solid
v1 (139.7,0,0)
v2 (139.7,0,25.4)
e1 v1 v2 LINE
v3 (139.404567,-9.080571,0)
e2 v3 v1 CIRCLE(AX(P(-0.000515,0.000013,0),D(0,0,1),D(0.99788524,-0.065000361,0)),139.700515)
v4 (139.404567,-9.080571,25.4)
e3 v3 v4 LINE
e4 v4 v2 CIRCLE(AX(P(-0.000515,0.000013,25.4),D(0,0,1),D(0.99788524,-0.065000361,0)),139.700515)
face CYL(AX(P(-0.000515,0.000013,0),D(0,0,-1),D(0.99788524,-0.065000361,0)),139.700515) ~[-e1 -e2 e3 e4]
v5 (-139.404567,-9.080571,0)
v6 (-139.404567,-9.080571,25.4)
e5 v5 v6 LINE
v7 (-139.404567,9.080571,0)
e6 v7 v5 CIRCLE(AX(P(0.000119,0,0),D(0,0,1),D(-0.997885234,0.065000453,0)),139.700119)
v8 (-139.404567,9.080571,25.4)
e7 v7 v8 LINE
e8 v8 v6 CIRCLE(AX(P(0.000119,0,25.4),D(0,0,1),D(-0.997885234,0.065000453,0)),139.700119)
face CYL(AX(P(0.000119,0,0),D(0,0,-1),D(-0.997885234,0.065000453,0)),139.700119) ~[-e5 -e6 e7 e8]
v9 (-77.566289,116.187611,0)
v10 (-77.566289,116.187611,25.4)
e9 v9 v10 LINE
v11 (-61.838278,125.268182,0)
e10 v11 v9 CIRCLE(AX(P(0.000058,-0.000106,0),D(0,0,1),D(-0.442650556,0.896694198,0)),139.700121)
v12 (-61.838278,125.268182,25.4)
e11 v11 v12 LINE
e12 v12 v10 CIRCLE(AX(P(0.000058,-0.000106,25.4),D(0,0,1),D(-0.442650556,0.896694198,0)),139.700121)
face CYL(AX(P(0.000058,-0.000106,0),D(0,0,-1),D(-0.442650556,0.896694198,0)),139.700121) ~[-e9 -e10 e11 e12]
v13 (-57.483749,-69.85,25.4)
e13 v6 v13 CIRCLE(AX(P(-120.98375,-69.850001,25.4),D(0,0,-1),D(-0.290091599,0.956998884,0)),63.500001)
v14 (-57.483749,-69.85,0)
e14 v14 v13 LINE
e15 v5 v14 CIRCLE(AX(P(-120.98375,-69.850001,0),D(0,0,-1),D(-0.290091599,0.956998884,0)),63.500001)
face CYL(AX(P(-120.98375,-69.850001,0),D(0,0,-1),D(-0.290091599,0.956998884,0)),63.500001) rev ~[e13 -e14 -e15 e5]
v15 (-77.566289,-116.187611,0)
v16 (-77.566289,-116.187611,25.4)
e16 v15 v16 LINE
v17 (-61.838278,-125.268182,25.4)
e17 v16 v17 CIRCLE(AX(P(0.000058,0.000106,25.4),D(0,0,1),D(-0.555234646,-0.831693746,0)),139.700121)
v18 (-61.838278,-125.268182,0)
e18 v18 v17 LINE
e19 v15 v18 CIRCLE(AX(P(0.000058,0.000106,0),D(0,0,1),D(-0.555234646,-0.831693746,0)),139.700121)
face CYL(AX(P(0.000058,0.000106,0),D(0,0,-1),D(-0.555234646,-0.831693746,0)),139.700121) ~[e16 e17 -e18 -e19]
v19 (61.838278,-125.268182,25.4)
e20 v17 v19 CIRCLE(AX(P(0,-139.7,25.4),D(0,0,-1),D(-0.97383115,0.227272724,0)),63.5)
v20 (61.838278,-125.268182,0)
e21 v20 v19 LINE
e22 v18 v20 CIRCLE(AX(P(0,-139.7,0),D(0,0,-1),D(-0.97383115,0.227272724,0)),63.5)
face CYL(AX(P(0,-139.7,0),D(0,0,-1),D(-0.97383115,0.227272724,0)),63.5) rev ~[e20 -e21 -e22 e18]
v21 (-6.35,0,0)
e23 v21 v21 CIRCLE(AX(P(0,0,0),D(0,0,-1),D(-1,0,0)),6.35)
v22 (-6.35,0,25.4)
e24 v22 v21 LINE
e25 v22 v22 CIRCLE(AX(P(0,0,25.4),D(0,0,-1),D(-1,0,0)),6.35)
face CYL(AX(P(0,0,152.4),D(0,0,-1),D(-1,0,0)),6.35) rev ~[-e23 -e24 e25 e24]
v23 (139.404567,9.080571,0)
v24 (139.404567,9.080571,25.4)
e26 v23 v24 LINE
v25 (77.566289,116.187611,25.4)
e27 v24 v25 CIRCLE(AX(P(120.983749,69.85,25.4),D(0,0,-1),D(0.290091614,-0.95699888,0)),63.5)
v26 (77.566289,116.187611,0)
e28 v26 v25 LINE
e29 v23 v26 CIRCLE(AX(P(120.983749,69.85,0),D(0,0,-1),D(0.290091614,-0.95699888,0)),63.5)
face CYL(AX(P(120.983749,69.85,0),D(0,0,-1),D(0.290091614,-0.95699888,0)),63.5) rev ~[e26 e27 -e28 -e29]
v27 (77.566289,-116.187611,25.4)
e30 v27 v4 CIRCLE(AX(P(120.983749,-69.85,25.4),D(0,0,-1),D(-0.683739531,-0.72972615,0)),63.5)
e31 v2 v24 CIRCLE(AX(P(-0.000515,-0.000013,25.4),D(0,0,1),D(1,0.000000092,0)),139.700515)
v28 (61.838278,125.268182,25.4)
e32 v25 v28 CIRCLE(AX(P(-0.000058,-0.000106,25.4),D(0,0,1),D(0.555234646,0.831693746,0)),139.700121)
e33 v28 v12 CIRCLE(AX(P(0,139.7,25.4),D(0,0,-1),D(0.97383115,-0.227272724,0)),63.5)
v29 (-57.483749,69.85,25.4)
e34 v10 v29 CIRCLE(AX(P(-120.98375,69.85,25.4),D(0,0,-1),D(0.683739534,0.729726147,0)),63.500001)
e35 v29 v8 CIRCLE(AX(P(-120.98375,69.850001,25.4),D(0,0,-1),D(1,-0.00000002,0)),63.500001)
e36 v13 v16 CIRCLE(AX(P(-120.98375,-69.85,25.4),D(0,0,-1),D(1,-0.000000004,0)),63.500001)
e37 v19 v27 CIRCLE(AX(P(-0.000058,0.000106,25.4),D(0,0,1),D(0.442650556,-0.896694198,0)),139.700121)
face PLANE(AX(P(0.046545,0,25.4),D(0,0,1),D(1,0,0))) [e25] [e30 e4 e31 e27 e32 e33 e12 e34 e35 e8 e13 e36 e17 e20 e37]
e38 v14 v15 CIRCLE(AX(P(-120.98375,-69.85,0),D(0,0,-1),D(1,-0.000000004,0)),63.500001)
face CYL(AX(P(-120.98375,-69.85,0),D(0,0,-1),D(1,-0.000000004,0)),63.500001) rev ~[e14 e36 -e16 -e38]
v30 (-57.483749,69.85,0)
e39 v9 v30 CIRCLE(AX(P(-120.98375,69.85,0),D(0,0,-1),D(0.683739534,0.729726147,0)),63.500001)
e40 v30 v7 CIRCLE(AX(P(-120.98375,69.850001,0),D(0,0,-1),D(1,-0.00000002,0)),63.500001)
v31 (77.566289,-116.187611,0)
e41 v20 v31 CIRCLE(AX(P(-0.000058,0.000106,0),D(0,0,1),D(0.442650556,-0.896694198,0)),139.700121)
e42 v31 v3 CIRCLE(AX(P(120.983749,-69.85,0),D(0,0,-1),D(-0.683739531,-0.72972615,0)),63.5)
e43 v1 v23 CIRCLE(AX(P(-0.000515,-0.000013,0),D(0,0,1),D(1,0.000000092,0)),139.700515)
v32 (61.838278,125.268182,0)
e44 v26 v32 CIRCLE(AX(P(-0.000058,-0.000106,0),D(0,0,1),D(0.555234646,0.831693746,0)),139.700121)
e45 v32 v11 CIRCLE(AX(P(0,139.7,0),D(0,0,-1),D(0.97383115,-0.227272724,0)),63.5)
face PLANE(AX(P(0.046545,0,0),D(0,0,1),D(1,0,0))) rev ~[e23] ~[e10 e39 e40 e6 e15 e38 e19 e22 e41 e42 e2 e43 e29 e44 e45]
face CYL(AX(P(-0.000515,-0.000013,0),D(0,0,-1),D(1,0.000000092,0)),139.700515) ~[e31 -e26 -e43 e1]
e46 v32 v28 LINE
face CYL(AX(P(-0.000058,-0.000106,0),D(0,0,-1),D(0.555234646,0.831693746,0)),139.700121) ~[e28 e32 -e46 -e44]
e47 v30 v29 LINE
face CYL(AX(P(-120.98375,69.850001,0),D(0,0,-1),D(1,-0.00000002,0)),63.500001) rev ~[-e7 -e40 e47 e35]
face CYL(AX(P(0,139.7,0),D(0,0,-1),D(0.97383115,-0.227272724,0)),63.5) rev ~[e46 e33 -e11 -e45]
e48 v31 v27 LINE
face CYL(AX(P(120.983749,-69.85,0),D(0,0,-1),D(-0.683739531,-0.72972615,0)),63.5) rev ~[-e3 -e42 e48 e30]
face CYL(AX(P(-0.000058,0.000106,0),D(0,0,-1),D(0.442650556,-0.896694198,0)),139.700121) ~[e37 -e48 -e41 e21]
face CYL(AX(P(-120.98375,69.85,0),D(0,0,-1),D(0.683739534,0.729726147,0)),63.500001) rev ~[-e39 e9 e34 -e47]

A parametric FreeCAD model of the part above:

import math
import FreeCAD as App
import Part
import Sketcher
Q = App.Units.Quantity

doc = App.newDocument("Part")
body = doc.addObject("PartDesign::Body", "Body")

# Sketch on XY plane
sketch1 = body.newObject("Sketcher::SketchObject", "Sketch")
sketch1.AttachmentSupport = (doc.getObject("XY_Plane"), [""])
sketch1.MapMode = "FlatFace"
sketch1.addGeometry([
    Part.ArcOfCircle(Part.Circle(App.Vector(-0.000515, 0.000013, 0), App.Vector(0, 0, 1), 139.700515), math.radians(-3.726874), math.radians(-0.000005)),  # 0
    Part.ArcOfCircle(Part.Circle(App.Vector(-0.000515, -0.000013, 0), App.Vector(0, 0, 1), 139.700515), math.radians(0.000005), math.radians(3.726874)),  # 1
    Part.ArcOfCircle(Part.Circle(App.Vector(120.983749, 69.85, 0), App.Vector(0, 0, 1), 63.5), math.radians(133.136559), math.radians(286.863441)),  # 2
    Part.ArcOfCircle(Part.Circle(App.Vector(-0.000058, -0.000106, 0), App.Vector(0, 0, 1), 139.700121), math.radians(56.273122), math.radians(63.72688)),  # 3
    Part.ArcOfCircle(Part.Circle(App.Vector(0, 139.7, 0), App.Vector(0, 0, 1), 63.5), math.radians(-166.863441), math.radians(-13.136559)),  # 4
    Part.ArcOfCircle(Part.Circle(App.Vector(0.000058, -0.000106, 0), App.Vector(0, 0, 1), 139.700121), math.radians(116.27312), math.radians(123.726878)),  # 5
    Part.ArcOfCircle(Part.Circle(App.Vector(-120.98375, 69.85, 0), App.Vector(0, 0, 1), 63.500001), math.radians(0), math.radians(46.863441)),  # 6
    Part.ArcOfCircle(Part.Circle(App.Vector(-120.98375, 69.850001, 0), App.Vector(0, 0, 1), 63.500001), math.radians(-106.86344), math.radians(-0.000001)),  # 7
    Part.ArcOfCircle(Part.Circle(App.Vector(0.000119, 0, 0), App.Vector(0, 0, 1), 139.700119), math.radians(176.273121), math.radians(183.726879)),  # 8
    Part.ArcOfCircle(Part.Circle(App.Vector(-120.98375, -69.850001, 0), App.Vector(0, 0, 1), 63.500001), math.radians(0.000001), math.radians(106.86344)),  # 9
    Part.ArcOfCircle(Part.Circle(App.Vector(-120.98375, -69.85, 0), App.Vector(0, 0, 1), 63.500001), math.radians(-46.863441), math.radians(0)),  # 10
    Part.ArcOfCircle(Part.Circle(App.Vector(0.000058, 0.000106, 0), App.Vector(0, 0, 1), 139.700121), math.radians(-123.726878), math.radians(-116.27312)),  # 11
    Part.ArcOfCircle(Part.Circle(App.Vector(0, -139.7, 0), App.Vector(0, 0, 1), 63.5), math.radians(13.136559), math.radians(166.863441)),  # 12
    Part.ArcOfCircle(Part.Circle(App.Vector(-0.000058, 0.000106, 0), App.Vector(0, 0, 1), 139.700121), math.radians(-63.72688), math.radians(-56.273122)),  # 13
    Part.ArcOfCircle(Part.Circle(App.Vector(120.983749, -69.85, 0), App.Vector(0, 0, 1), 63.5), math.radians(73.136559), math.radians(226.863441)),  # 14
], False)
sketch1.addConstraint([
    Sketcher.Constraint("Coincident", 0, 2, 1, 1),
    Sketcher.Constraint("Coincident", 1, 2, 2, 2),
    Sketcher.Constraint("Coincident", 2, 1, 3, 1),
    Sketcher.Constraint("Coincident", 3, 2, 4, 2),
    Sketcher.Constraint("Coincident", 4, 1, 5, 1),
    Sketcher.Constraint("Coincident", 5, 2, 6, 2),
    Sketcher.Constraint("Coincident", 6, 1, 7, 2),
    Sketcher.Constraint("Coincident", 7, 1, 8, 1),
    Sketcher.Constraint("Coincident", 8, 2, 9, 2),
    Sketcher.Constraint("Coincident", 9, 1, 10, 2),
    Sketcher.Constraint("Coincident", 10, 1, 11, 1),
    Sketcher.Constraint("Coincident", 11, 2, 12, 2),
    Sketcher.Constraint("Coincident", 12, 1, 13, 1),
    Sketcher.Constraint("Coincident", 13, 2, 14, 2),
    Sketcher.Constraint("Coincident", 14, 1, 0, 1),
    Sketcher.Constraint("Coincident", 7, 3, 6, 3),
    Sketcher.Constraint("Coincident", 10, 3, 9, 3),
    Sketcher.Constraint("PointOnObject", 4, 3, -2),
    Sketcher.Constraint("PointOnObject", 8, 3, -1),
    Sketcher.Constraint("PointOnObject", 12, 3, -2),
    Sketcher.Constraint("PointOnObject", 0, 2, -1),
    Sketcher.Constraint("Radius", 2, Q("2.5 in")),
    Sketcher.Constraint("Radius", 4, Q("2.5 in")),
    Sketcher.Constraint("Radius", 6, Q("2.5000001 in")),
    Sketcher.Constraint("Radius", 9, Q("2.5 in")),
    Sketcher.Constraint("Radius", 12, Q("2.5 in")),
    Sketcher.Constraint("Radius", 14, Q("2.5 in")),
    Sketcher.Constraint("DistanceY", -1, 1, 4, 3, Q("5.5 in")),
    Sketcher.Constraint("DistanceY", 12, 3, -1, 1, Q("5.5 in")),
    Sketcher.Constraint("DistanceX", -1, 1, 0, 2, Q("5.5 in")),
    Sketcher.Constraint("DistanceY", 9, 3, 6, 3, Q("5.5 in")),
    Sketcher.Constraint("DistanceY", 14, 3, 2, 3, Q("5.5 in")),
    Sketcher.Constraint("DistanceY", -1, 1, 2, 3, Q("2.75 in")),
    Sketcher.Constraint("DistanceY", -1, 1, 6, 3, Q("2.75 in")),
    Sketcher.Constraint("DistanceY", -1, 1, 6, 1, Q("2.75 in")),
    Sketcher.Constraint("DistanceY", 9, 1, -1, 1, Q("2.75 in")),
    Sketcher.Constraint("Radius", 3, 139.700121),
    Sketcher.Constraint("Radius", 5, 139.700121),
    Sketcher.Constraint("Radius", 8, 139.700119),
    Sketcher.Constraint("Radius", 11, 139.700121),
    Sketcher.Constraint("Radius", 13, 139.700121),
    Sketcher.Constraint("Radius", 0, 139.700515),
    Sketcher.Constraint("Radius", 1, 139.700515),
    Sketcher.Constraint("DistanceY", 0, 3, 5, 2, 116.187598),
    Sketcher.Constraint("DistanceX", -1, 1, 2, 3, 120.983749),
    Sketcher.Constraint("DistanceX", 6, 3, -1, 1, 120.98375),
    Sketcher.Constraint("DistanceX", -1, 1, 8, 3, 0.000119),
    Sketcher.Constraint("DistanceX", 9, 3, -1, 1, 120.98375),
    Sketcher.Constraint("DistanceX", -1, 1, 14, 3, 120.983749),
    Sketcher.Constraint("DistanceX", -1, 1, 2, 1, 77.566289),
    Sketcher.Constraint("DistanceX", 5, 2, -1, 1, 77.566289),
    Sketcher.Constraint("DistanceX", 10, 1, -1, 1, 77.566289),
    Sketcher.Constraint("DistanceX", -1, 1, 13, 2, 77.566289),
    Sketcher.Constraint("DistanceY", 3, 3, 0, 3, 0.000119),
    Sketcher.Constraint("DistanceY", 5, 3, 0, 3, 0.000119),
    Sketcher.Constraint("DistanceY", 9, 3, 1, 3, 69.849988),
    Sketcher.Constraint("DistanceY", 5, 3, 11, 3, 0.000211),
    Sketcher.Constraint("DistanceY", 3, 3, 13, 3, 0.000211),
])
pad1 = body.newObject("PartDesign::Pad", "Pad")
pad1.Profile = sketch1
pad1.Length = Q("1 in")

# Sketch on XY plane
sketch2 = body.newObject("Sketcher::SketchObject", "Sketch001")
sketch2.AttachmentSupport = (doc.getObject("XY_Plane"), [""])
sketch2.MapMode = "FlatFace"
sketch2.AttachmentOffset = App.Placement(App.Vector(0, 0, 1 * 25.4), App.Rotation())
sketch2.addGeometry(Part.Circle(App.Vector(0, 0, 0), App.Vector(0, 0, 1), 6), False)
sketch2.addConstraint([
    Sketcher.Constraint("Coincident", 0, 3, -1, 1),
    Sketcher.Constraint("Diameter", 0, Q("0.5 in")),
])
doc.recompute()
hole = body.newObject("PartDesign::Hole", "Hole")
hole.Profile = sketch2
hole.ThreadType = "None"
hole.Diameter = Q("0.5 in")
hole.DepthType = "Dimension"
hole.Depth = Q("5 in")
hole.DrillPoint = "Flat"

doc.recompute()
